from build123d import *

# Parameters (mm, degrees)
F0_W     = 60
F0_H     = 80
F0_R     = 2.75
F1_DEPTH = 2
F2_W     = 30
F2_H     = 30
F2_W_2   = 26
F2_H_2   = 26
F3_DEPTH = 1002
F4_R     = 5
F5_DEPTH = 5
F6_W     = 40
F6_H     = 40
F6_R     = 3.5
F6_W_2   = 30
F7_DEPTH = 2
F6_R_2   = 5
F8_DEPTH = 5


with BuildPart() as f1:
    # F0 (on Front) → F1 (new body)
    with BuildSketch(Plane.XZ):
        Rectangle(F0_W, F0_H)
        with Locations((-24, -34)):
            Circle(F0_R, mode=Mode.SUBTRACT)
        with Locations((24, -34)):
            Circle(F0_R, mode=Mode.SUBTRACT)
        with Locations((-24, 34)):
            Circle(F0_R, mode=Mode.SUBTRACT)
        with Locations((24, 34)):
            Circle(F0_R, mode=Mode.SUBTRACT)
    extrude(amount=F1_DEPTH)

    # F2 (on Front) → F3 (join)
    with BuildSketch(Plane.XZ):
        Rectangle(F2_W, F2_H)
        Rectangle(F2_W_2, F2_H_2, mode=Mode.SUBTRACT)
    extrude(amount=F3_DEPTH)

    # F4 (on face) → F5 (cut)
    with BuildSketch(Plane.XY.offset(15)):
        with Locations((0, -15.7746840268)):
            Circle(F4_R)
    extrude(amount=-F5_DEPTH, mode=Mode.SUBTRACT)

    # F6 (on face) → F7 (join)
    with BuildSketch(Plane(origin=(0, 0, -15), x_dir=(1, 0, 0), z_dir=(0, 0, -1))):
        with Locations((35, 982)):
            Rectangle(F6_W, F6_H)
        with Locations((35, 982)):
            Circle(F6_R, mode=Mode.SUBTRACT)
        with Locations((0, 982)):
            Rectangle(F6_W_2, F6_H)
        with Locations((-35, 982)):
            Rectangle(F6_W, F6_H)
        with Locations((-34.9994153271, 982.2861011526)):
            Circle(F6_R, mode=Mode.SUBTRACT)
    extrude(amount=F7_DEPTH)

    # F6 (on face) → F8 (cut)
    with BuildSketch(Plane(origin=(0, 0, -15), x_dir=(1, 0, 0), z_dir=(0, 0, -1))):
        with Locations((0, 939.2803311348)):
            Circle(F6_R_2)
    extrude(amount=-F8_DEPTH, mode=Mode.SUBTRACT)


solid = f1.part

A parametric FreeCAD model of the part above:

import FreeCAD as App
import Part
import Sketcher

V = App.Vector
Q = App.Units.Quantity

doc = App.newDocument("Part")
body = doc.addObject("PartDesign::Body", "Body")

# Sketch on XZ plane
sketch1 = doc.addObject("Sketcher::SketchObject", "Sketch")
body.addObject(sketch1)
sketch1.AttachmentSupport = (doc.XZ_Plane, [""])
sketch1.MapMode = "FlatFace"
sketch1.addGeometry([
    Part.LineSegment(V(-30, 40, 0), V(-30, -40, 0)),  # 0
    Part.LineSegment(V(-30, -40, 0), V(30, -40, 0)),  # 1
    Part.LineSegment(V(30, -40, 0), V(30, 40, 0)),  # 2
    Part.LineSegment(V(30, 40, 0), V(-30, 40, 0)),  # 3
    Part.Circle(V(-24, -34, 0), V(0, 0, 1), 2.8),  # 4
    Part.Circle(V(24, -34, 0), V(0, 0, 1), 2.8),  # 5
    Part.Circle(V(-24, 34, 0), V(0, 0, 1), 2.8),  # 6
    Part.Circle(V(24, 34, 0), V(0, 0, 1), 2.8),  # 7
], False)
sketch1.addConstraint([
    Sketcher.Constraint("Coincident", 0, 2, 1, 1),
    Sketcher.Constraint("Coincident", 1, 2, 2, 1),
    Sketcher.Constraint("Coincident", 2, 2, 3, 1),
    Sketcher.Constraint("Coincident", 3, 2, 0, 1),
    Sketcher.Constraint("Vertical", 0),
    Sketcher.Constraint("Horizontal", 1),
    Sketcher.Constraint("Vertical", 2),
    Sketcher.Constraint("Horizontal", 3),
    Sketcher.Constraint("Equal", 4, 5),
    Sketcher.Constraint("Equal", 5, 6),
    Sketcher.Constraint("Equal", 6, 7),
    Sketcher.Constraint("Symmetric", 5, 3, 6, 3, -1, 1),
    Sketcher.Constraint("Symmetric", 4, 3, 7, 3, -1, 1),
    Sketcher.Constraint("Symmetric", 0, 2, 2, 2, -1, 1),
    Sketcher.Constraint("Symmetric", 4, 3, 5, 3, -2),
    Sketcher.Constraint("Diameter", 4, Q("5.5 mm")),
    Sketcher.Constraint("DistanceX", 1, 1, 1, 2, Q("60 mm")),
    Sketcher.Constraint("DistanceY", 0, 2, 0, 1, Q("80 mm")),
    Sketcher.Constraint("DistanceX", 4, 3, -1, 1, Q("24 mm")),
    Sketcher.Constraint("DistanceY", 4, 3, -1, 1, Q("34 mm")),
])
pad1 = doc.addObject("PartDesign::Pad", "Pad")
body.addObject(pad1)
pad1.Profile = sketch1
pad1.Length = 2

# Sketch on XZ plane
sketch2 = doc.addObject("Sketcher::SketchObject", "Sketch001")
body.addObject(sketch2)
sketch2.AttachmentSupport = (doc.XZ_Plane, [""])
sketch2.MapMode = "FlatFace"
sketch2.addGeometry([
    Part.LineSegment(V(-15, 15, 0), V(-15, -15, 0)),  # 0
    Part.LineSegment(V(-15, -15, 0), V(15, -15, 0)),  # 1
    Part.LineSegment(V(15, -15, 0), V(15, 15, 0)),  # 2
    Part.LineSegment(V(15, 15, 0), V(-15, 15, 0)),  # 3
    Part.LineSegment(V(13, -13, 0), V(-13, -13, 0)),  # 4
    Part.LineSegment(V(-13, -13, 0), V(-13, 13, 0)),  # 5
    Part.LineSegment(V(-13, 13, 0), V(13, 13, 0)),  # 6
    Part.LineSegment(V(13, 13, 0), V(13, -13, 0)),  # 7
], False)
sketch2.addConstraint([
    Sketcher.Constraint("Coincident", 0, 2, 1, 1),
    Sketcher.Constraint("Coincident", 1, 2, 2, 1),
    Sketcher.Constraint("Coincident", 2, 2, 3, 1),
    Sketcher.Constraint("Coincident", 3, 2, 0, 1),
    Sketcher.Constraint("Coincident", 4, 2, 5, 1),
    Sketcher.Constraint("Coincident", 5, 2, 6, 1),
    Sketcher.Constraint("Coincident", 6, 2, 7, 1),
    Sketcher.Constraint("Coincident", 7, 2, 4, 1),
    Sketcher.Constraint("Vertical", 0),
    Sketcher.Constraint("Horizontal", 1),
    Sketcher.Constraint("Vertical", 2),
    Sketcher.Constraint("Horizontal", 3),
    Sketcher.Constraint("Horizontal", 4),
    Sketcher.Constraint("Vertical", 5),
    Sketcher.Constraint("Horizontal", 6),
    Sketcher.Constraint("Vertical", 7),
    Sketcher.Constraint("Symmetric", 0, 2, 2, 2, -1, 1),
    Sketcher.Constraint("Symmetric", 4, 2, 6, 2, -1, 1),
    Sketcher.Constraint("Equal", 3, 0),
    Sketcher.Constraint("Equal", 6, 5),
    Sketcher.Constraint("DistanceX", 1, 1, 1, 2, Q("30 mm")),
    Sketcher.Constraint("DistanceX", 4, 2, 4, 1, Q("26 mm")),
])
pad2 = doc.addObject("PartDesign::Pad", "Pad001")
body.addObject(pad2)
pad2.Profile = sketch2
pad2.Length = 1002

# Sketch on XY plane
sketch3 = doc.addObject("Sketcher::SketchObject", "Sketch002")
body.addObject(sketch3)
sketch3.AttachmentSupport = (doc.XY_Plane, [""])
sketch3.MapMode = "FlatFace"
sketch3.AttachmentOffset = App.Placement(V(0, 0, 15), App.Rotation())
sketch3.addGeometry(Part.Circle(V(0, -16, 0), V(0, 0, 1), 5), False)
sketch3.addConstraint([
    Sketcher.Constraint("PointOnObject", 0, 3, -2),
    Sketcher.Constraint("Diameter", 0, Q("10 mm")),
    Sketcher.Constraint("DistanceY", 0, 3, -1, 1, Q("15.774684 mm")),
])
pocket1 = doc.addObject("PartDesign::Pocket", "Pocket")
body.addObject(pocket1)
pocket1.Profile = sketch3
pocket1.Length = 5

# Sketch on XY plane
sketch4 = doc.addObject("Sketcher::SketchObject", "Sketch003")
body.addObject(sketch4)
sketch4.AttachmentSupport = (doc.XY_Plane, [""])
sketch4.MapMode = "FlatFace"
sketch4.AttachmentOffset = App.Placement(V(0, 0, -15), App.Rotation())
sketch4.addGeometry([
    Part.LineSegment(V(55, -962, 0), V(55, -1002, 0)),  # 0
    Part.LineSegment(V(55, -1002, 0), V(-55, -1002, 0)),  # 1
    Part.LineSegment(V(-55, -1002, 0), V(-55, -962, 0)),  # 2
    Part.LineSegment(V(-55, -962, 0), V(55, -962, 0)),  # 3
    Part.Circle(V(35, -982, 0), V(0, 0, 1), 3.5),  # 4
    Part.Circle(V(-35, -982.3, 0), V(0, 0, 1), 3.5),  # 5
], False)
sketch4.addConstraint([
    Sketcher.Constraint("Coincident", 0, 2, 1, 1),
    Sketcher.Constraint("Coincident", 1, 2, 2, 1),
    Sketcher.Constraint("Coincident", 2, 2, 3, 1),
    Sketcher.Constraint("Coincident", 3, 2, 0, 1),
    Sketcher.Constraint("Vertical", 0),
    Sketcher.Constraint("Horizontal", 1),
    Sketcher.Constraint("Vertical", 2),
    Sketcher.Constraint("Horizontal", 3),
    Sketcher.Constraint("Equal", 4, 5),
    Sketcher.Constraint("Diameter", 4, Q("7 mm")),
    Sketcher.Constraint("DistanceX", 1, 2, 1, 1, Q("110 mm")),
    Sketcher.Constraint("DistanceY", 0, 2, 0, 1, Q("40 mm")),
    Sketcher.Constraint("DistanceX", -1, 1, 4, 3, Q("35 mm")),
    Sketcher.Constraint("DistanceY", 4, 3, -1, 1, Q("982 mm")),
    Sketcher.Constraint("DistanceX", -1, 1, 0, 2, Q("55 mm")),
    Sketcher.Constraint("DistanceY", 0, 2, -1, 1, Q("1002 mm")),
    Sketcher.Constraint("DistanceY", 5, 3, -1, 1, Q("982.286101 mm")),
    Sketcher.Constraint("DistanceX", 5, 3, -1, 1, Q("34.999415 mm")),
])
pad3 = doc.addObject("PartDesign::Pad", "Pad002")
body.addObject(pad3)
pad3.Profile = sketch4
pad3.Length = 2
pad3.Reversed = True

# Sketch on XY plane
sketch5 = doc.addObject("Sketcher::SketchObject", "Sketch004")
body.addObject(sketch5)
sketch5.AttachmentSupport = (doc.XY_Plane, [""])
sketch5.MapMode = "FlatFace"
sketch5.AttachmentOffset = App.Placement(V(0, 0, -15), App.Rotation())
sketch5.addGeometry(Part.Circle(V(0, -939, 0), V(0, 0, 1), 5), False)
sketch5.addConstraint([
    Sketcher.Constraint("PointOnObject", 0, 3, -2),
    Sketcher.Constraint("Diameter", 0, Q("10 mm")),
    Sketcher.Constraint("DistanceY", 0, 3, -1, 1, Q("939.280331 mm")),
])
pocket2 = doc.addObject("PartDesign::Pocket", "Pocket001")
body.addObject(pocket2)
pocket2.Profile = sketch5
pocket2.Length = 5
pocket2.Reversed = True

doc.recompute()
